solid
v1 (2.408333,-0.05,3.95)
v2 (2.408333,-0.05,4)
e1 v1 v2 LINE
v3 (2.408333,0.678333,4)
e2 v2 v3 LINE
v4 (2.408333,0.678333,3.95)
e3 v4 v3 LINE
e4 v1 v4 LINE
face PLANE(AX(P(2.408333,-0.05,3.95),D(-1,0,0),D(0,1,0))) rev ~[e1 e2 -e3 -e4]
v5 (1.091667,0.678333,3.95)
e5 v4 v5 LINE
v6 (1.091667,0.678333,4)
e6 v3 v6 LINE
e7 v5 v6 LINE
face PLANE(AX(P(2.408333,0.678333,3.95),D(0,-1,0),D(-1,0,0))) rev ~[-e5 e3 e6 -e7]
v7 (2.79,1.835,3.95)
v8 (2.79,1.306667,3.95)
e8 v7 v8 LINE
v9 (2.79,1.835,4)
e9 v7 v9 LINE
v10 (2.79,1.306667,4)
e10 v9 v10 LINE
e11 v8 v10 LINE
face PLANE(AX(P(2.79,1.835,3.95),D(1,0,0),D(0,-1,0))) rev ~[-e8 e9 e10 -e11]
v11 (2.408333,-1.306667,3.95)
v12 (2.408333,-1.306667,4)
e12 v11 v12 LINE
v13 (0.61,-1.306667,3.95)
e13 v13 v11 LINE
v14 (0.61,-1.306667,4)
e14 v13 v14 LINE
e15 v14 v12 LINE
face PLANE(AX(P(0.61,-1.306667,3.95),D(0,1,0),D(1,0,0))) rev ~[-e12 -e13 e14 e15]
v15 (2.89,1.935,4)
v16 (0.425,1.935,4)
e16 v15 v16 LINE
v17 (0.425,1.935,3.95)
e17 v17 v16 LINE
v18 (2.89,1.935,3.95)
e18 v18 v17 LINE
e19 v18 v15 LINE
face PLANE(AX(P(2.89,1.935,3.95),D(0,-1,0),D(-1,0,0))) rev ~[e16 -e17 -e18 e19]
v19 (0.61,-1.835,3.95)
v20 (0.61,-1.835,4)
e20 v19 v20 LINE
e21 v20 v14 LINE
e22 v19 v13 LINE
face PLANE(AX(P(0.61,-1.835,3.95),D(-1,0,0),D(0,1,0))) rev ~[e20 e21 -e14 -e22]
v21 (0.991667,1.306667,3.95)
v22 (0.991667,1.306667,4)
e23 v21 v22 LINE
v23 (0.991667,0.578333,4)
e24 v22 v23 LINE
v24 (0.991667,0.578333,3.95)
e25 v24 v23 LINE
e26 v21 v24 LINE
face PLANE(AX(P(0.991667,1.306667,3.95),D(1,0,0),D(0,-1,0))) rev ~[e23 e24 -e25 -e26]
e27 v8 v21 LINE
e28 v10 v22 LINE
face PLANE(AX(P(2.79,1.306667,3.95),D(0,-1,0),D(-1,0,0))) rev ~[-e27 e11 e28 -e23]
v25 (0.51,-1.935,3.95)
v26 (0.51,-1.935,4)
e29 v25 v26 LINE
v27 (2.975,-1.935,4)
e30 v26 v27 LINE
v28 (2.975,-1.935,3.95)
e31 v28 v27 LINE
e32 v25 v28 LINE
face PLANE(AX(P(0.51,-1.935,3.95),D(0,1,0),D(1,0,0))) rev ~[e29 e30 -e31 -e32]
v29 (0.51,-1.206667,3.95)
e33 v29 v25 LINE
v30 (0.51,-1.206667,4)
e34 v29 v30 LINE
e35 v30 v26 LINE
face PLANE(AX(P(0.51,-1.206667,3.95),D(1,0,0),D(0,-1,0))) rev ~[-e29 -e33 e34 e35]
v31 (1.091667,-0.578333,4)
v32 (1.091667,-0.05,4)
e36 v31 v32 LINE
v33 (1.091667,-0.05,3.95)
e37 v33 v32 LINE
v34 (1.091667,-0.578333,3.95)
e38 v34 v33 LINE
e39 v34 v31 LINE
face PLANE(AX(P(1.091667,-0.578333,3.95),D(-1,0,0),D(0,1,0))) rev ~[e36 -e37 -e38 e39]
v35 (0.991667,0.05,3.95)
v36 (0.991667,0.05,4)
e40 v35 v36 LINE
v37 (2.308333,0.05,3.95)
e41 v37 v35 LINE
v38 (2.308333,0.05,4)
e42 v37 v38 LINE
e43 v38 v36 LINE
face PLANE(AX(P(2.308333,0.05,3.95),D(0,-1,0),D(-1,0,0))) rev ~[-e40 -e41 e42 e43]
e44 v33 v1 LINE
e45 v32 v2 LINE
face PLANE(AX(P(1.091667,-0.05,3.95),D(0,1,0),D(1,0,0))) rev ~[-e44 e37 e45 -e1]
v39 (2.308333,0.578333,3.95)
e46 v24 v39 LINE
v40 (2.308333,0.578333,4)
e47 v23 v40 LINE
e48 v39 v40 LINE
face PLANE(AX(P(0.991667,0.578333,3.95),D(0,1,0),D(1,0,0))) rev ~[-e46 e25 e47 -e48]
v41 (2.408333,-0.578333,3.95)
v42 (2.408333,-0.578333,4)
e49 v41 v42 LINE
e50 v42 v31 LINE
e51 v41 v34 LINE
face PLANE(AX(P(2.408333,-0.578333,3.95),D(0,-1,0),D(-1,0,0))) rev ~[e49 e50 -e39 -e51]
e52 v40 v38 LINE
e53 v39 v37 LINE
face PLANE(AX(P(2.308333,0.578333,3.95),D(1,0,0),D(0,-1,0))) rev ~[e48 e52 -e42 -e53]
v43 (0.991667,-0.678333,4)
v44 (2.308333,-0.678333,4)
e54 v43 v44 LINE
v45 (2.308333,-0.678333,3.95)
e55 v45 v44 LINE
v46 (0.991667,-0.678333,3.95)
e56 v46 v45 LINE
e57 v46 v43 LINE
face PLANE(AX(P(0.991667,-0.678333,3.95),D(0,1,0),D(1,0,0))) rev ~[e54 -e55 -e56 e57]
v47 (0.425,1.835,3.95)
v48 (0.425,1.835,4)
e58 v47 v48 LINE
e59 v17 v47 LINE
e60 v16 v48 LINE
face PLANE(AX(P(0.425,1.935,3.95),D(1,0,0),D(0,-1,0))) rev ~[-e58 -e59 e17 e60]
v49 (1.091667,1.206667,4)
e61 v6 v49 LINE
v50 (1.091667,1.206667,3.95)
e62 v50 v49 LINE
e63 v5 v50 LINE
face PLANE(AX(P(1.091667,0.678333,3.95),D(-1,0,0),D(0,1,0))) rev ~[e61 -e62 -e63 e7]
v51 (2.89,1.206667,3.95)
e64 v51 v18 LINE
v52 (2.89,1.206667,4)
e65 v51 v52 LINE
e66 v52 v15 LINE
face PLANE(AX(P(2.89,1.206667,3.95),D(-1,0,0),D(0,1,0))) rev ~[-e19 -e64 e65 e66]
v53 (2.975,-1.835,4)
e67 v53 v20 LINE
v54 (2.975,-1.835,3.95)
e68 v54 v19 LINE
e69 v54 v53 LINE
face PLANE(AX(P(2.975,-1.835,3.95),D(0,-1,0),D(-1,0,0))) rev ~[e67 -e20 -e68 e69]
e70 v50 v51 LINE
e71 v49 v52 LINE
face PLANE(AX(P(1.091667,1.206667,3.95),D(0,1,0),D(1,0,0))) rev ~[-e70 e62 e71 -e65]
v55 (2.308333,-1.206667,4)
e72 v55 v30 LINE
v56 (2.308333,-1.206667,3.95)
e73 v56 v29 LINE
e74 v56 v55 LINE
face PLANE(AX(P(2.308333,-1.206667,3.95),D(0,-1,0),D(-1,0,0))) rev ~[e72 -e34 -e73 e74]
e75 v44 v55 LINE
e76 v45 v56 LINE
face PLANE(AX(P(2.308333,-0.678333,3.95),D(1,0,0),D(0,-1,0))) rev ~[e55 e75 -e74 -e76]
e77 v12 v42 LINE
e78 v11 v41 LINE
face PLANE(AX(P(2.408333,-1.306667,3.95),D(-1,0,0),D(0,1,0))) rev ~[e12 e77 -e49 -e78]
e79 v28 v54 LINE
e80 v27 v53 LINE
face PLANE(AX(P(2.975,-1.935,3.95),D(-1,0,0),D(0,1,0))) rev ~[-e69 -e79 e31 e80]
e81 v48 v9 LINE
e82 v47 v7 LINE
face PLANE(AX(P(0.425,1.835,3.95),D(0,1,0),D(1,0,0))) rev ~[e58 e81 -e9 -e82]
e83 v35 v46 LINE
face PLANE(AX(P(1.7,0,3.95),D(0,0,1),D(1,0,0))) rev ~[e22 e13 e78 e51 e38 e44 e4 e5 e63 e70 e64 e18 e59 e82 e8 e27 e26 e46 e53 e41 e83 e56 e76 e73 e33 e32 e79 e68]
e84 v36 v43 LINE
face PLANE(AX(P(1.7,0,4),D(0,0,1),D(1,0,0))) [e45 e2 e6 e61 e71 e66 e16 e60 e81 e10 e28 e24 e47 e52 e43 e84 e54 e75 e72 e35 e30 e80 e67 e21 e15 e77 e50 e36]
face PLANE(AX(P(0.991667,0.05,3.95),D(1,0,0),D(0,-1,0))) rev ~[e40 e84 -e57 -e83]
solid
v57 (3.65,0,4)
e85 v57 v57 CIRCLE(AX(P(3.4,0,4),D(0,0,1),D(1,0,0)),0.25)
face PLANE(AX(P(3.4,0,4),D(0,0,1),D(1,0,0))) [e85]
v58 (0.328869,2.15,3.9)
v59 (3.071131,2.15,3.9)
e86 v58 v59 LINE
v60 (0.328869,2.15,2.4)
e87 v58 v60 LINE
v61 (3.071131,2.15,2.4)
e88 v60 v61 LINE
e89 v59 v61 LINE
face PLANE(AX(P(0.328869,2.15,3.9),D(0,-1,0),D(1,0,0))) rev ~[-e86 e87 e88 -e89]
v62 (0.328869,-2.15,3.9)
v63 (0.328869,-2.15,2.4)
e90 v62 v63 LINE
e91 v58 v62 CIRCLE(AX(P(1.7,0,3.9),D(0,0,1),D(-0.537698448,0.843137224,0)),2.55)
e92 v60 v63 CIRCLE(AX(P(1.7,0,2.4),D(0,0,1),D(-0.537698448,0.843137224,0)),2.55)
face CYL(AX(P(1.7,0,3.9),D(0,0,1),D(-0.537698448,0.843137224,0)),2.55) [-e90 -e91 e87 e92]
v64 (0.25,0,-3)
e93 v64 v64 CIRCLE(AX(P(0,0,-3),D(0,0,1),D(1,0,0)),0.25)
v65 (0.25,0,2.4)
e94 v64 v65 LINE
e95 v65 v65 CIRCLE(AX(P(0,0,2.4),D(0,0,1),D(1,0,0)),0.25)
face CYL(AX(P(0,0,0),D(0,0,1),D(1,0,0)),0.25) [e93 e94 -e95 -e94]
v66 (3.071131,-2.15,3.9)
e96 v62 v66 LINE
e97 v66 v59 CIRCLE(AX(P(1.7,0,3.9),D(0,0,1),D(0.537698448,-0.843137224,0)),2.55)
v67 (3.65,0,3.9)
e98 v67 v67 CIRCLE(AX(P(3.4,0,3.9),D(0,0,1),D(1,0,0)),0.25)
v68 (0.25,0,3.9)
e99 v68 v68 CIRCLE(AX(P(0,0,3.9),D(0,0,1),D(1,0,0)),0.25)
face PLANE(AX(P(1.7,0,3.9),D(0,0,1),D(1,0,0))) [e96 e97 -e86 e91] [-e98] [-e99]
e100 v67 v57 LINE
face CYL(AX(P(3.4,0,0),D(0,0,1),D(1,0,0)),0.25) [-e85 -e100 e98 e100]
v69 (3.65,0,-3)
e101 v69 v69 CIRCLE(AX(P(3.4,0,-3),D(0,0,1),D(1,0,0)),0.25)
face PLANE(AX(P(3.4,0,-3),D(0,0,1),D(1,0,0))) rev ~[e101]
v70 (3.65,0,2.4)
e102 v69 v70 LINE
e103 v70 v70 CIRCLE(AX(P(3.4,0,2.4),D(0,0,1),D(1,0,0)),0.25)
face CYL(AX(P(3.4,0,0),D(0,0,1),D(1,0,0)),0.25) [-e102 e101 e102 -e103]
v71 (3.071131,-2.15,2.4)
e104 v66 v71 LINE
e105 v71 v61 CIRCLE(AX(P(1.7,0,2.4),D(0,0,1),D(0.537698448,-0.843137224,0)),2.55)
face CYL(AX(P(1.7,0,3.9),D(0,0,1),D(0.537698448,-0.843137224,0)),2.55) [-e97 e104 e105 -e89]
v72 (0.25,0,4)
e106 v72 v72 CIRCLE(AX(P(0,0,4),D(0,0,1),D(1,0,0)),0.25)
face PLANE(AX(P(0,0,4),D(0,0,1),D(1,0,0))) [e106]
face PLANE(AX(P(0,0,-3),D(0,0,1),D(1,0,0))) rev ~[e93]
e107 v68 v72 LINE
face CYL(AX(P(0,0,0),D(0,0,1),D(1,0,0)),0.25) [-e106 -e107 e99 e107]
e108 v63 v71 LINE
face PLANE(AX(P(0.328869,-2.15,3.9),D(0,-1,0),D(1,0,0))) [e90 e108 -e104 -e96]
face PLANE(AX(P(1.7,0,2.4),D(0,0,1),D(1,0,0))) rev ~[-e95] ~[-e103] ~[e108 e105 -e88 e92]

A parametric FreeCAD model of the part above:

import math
import FreeCAD as App
import Part
import Sketcher
Q = App.Units.Quantity


def add_polygon(sketch, points):
    """Adds a closed chain of lines whose ends are joined by coincident constraints."""
    first, n = sketch.GeometryCount, len(points)
    for a, b in zip(points, points[1:] + points[:1]):
        sketch.addGeometry(Part.LineSegment(App.Vector(*a, 0), App.Vector(*b, 0)), False)
    for i in range(n):
        sketch.addConstraint(Sketcher.Constraint("Coincident", first + i, 2, first + (i + 1) % n, 1))

doc = App.newDocument("Part")
body = doc.addObject("PartDesign::Body", "Body")

sketch1 = doc.addObject("Sketcher::SketchObject", "Sketch")
body.addObject(sketch1)
sketch1.AttachmentSupport = (doc.XY_Plane, [""])
sketch1.MapMode = "FlatFace"
sketch1.AttachmentOffset = App.Placement(App.Vector(0, 0, 3.9), App.Rotation())
sketch1.addGeometry([
    Part.ArcOfCircle(Part.Circle(App.Vector(1.7, 0, 0), App.Vector(0, 0, 1), 2.6), math.radians(123), math.radians(237)),
    Part.LineSegment(App.Vector(0.3, -2.1, 0), App.Vector(3.1, -2.1, 0)),
    Part.ArcOfCircle(Part.Circle(App.Vector(1.7, 0, 0), App.Vector(0, 0, 1), 2.6), math.radians(-57), math.radians(57)),
    Part.LineSegment(App.Vector(3.1, 2.1, 0), App.Vector(0.3, 2.1, 0)),
], False)
sketch1.addConstraint([
    Sketcher.Constraint("Coincident", 0, 2, 1, 1),
    Sketcher.Constraint("Coincident", 1, 2, 2, 1),
    Sketcher.Constraint("Coincident", 2, 2, 3, 1),
    Sketcher.Constraint("Coincident", 3, 2, 0, 1),
    Sketcher.Constraint("Horizontal", 1),
    Sketcher.Constraint("Horizontal", 3),
    Sketcher.Constraint("Coincident", 2, 3, 0, 3),
    Sketcher.Constraint("Equal", 0, 2),
    Sketcher.Constraint("Symmetric", 1, 2, 2, 2, -1),
    Sketcher.Constraint("Radius", 0, Q("2.55 mm")),
    Sketcher.Constraint("DistanceX", -1, 1, 0, 3, Q("1.7 mm")),
    Sketcher.Constraint("DistanceY", 1, 2, 2, 2, Q("4.3 mm")),
])
pad1 = doc.addObject("PartDesign::Pad", "Pad")
body.addObject(pad1)
pad1.Profile = sketch1
pad1.Length = 1.5
pad1.Reversed = True
body2 = doc.addObject("PartDesign::Body", "Body001")
body2.AllowCompound = True

sketch2 = doc.addObject("Sketcher::SketchObject", "Sketch001")
body2.addObject(sketch2)
sketch2.AttachmentSupport = (doc.getObject("XY_Plane001"), [""])
sketch2.MapMode = "FlatFace"
sketch2.addGeometry([
    Part.Circle(App.Vector(0, 0, 0), App.Vector(0, 0, 1), 0.25),
    Part.Circle(App.Vector(3.4, 0, 0), App.Vector(0, 0, 1), 0.25),
], False)
sketch2.addConstraint([
    Sketcher.Constraint("Coincident", 0, 3, -1, 1),
    Sketcher.Constraint("Equal", 0, 1),
    Sketcher.Constraint("PointOnObject", 1, 3, -1),
    Sketcher.Constraint("Diameter", 0, Q("0.5 mm")),
    Sketcher.Constraint("DistanceX", -1, 1, 1, 3, Q("3.4 mm")),
])
pad2 = doc.addObject("PartDesign::Pad", "Pad001")
body2.addObject(pad2)
pad2.Profile = sketch2
pad2.Type = "TwoLengths"
pad2.Length = 4
pad2.Length2 = 3
body3 = doc.addObject("PartDesign::Body", "Body002")
body3.AllowCompound = True

sketch3 = doc.addObject("Sketcher::SketchObject", "Sketch002")
body3.addObject(sketch3)
sketch3.AttachmentSupport = (doc.getObject("XY_Plane002"), [""])
sketch3.MapMode = "FlatFace"
sketch3.AttachmentOffset = App.Placement(App.Vector(0, 0, 3.95), App.Rotation())
add_polygon(sketch3, [(0.42, 1.83), (2.79, 1.83), (2.79, 1.31), (0.99, 1.31), (0.99, 0.58), (2.31, 0.58), (2.31, 0.05), (0.99, 0.05), (0.99, -0.68), (2.31, -0.68), (2.31, -1.21), (0.51, -1.21), (0.51, -1.94), (2.98, -1.94), (2.98, -1.83), (0.61, -1.83), (0.61, -1.31), (2.41, -1.31), (2.41, -0.58), (1.09, -0.58), (1.09, -0.05), (2.41, -0.05), (2.41, 0.68), (1.09, 0.68), (1.09, 1.21), (2.89, 1.21), (2.89, 1.94), (0.42, 1.94)])
sketch3.addConstraint([
    Sketcher.Constraint("Horizontal", 0),
    Sketcher.Constraint("Vertical", 1),
    Sketcher.Constraint("Horizontal", 2),
    Sketcher.Constraint("Vertical", 3),
    Sketcher.Constraint("Horizontal", 4),
    Sketcher.Constraint("Vertical", 5),
    Sketcher.Constraint("Horizontal", 6),
    Sketcher.Constraint("Vertical", 7),
    Sketcher.Constraint("Horizontal", 8),
    Sketcher.Constraint("Vertical", 9),
    Sketcher.Constraint("Horizontal", 10),
    Sketcher.Constraint("Vertical", 11),
    Sketcher.Constraint("Horizontal", 12),
    Sketcher.Constraint("Vertical", 13),
    Sketcher.Constraint("Horizontal", 14),
    Sketcher.Constraint("Vertical", 15),
    Sketcher.Constraint("Horizontal", 16),
    Sketcher.Constraint("Vertical", 17),
    Sketcher.Constraint("Horizontal", 18),
    Sketcher.Constraint("Vertical", 19),
    Sketcher.Constraint("Horizontal", 20),
    Sketcher.Constraint("Vertical", 21),
    Sketcher.Constraint("Horizontal", 22),
    Sketcher.Constraint("Vertical", 23),
    Sketcher.Constraint("Horizontal", 24),
    Sketcher.Constraint("Vertical", 25),
    Sketcher.Constraint("Horizontal", 26),
    Sketcher.Constraint("Vertical", 27),
    Sketcher.Constraint("Vertical", 3, 2, 6, 2),
    Sketcher.Constraint("Vertical", 5, 2, 8, 2),
    Sketcher.Constraint("Vertical", 17, 2, 20, 2),
    Sketcher.Constraint("Vertical", 19, 2, 22, 2),
    Sketcher.Constraint("Equal", 2, 10),
    Sketcher.Constraint("Equal", 0, 14),
    Sketcher.Constraint("Equal", 10, 16),
    Sketcher.Constraint("Equal", 8, 18),
    Sketcher.Constraint("Equal", 16, 24),
    Sketcher.Constraint("Equal", 1, 5),
    Sketcher.Constraint("Equal", 3, 7),
    Sketcher.Constraint("Equal", 5, 9),
    Sketcher.Constraint("Equal", 7, 11),
    Sketcher.Constraint("Equal", 9, 15),
    Sketcher.Constraint("Equal", 11, 17),
    Sketcher.Constraint("Equal", 15, 19),
    Sketcher.Constraint("Equal", 17, 21),
    Sketcher.Constraint("Equal", 19, 23),
    Sketcher.Constraint("Equal", 21, 25),
    Sketcher.Constraint("DistanceY", 13, 1, 13, 2, Q("0.1 mm")),
    Sketcher.Constraint("DistanceX", 11, 2, 14, 2, Q("0.1 mm")),
    Sketcher.Constraint("DistanceY", 15, 2, 10, 2, Q("0.1 mm")),
    Sketcher.Constraint("DistanceX", 0, 1, 0, 2, Q("2.365 mm")),
    Sketcher.Constraint("DistanceX", -1, 1, 0, 2, Q("2.79 mm")),
    Sketcher.Constraint("DistanceY", -1, 1, 5, 2, Q("0.05 mm")),
    Sketcher.Constraint("DistanceX", -1, 1, 10, 2, Q("0.51 mm")),
    Sketcher.Constraint("DistanceY", -1, 1, 0, 2, Q("1.835 mm")),
    Sketcher.Constraint("DistanceX", 2, 2, 2, 1, Q("1.798333 mm")),
])
pad3 = doc.addObject("PartDesign::Pad", "Pad002")
body3.addObject(pad3)
pad3.Profile = sketch3
pad3.Length = 0.05
doc.recompute()

boolean = doc.addObject("PartDesign::Boolean", "Boolean")
body3.addObject(boolean)
boolean.Type = "Fuse"
boolean.addObjects([body])
doc.recompute()

boolean2 = doc.addObject("PartDesign::Boolean", "Boolean001")
body3.addObject(boolean2)
boolean2.Type = "Fuse"
boolean2.addObjects([body2])

doc.recompute()
